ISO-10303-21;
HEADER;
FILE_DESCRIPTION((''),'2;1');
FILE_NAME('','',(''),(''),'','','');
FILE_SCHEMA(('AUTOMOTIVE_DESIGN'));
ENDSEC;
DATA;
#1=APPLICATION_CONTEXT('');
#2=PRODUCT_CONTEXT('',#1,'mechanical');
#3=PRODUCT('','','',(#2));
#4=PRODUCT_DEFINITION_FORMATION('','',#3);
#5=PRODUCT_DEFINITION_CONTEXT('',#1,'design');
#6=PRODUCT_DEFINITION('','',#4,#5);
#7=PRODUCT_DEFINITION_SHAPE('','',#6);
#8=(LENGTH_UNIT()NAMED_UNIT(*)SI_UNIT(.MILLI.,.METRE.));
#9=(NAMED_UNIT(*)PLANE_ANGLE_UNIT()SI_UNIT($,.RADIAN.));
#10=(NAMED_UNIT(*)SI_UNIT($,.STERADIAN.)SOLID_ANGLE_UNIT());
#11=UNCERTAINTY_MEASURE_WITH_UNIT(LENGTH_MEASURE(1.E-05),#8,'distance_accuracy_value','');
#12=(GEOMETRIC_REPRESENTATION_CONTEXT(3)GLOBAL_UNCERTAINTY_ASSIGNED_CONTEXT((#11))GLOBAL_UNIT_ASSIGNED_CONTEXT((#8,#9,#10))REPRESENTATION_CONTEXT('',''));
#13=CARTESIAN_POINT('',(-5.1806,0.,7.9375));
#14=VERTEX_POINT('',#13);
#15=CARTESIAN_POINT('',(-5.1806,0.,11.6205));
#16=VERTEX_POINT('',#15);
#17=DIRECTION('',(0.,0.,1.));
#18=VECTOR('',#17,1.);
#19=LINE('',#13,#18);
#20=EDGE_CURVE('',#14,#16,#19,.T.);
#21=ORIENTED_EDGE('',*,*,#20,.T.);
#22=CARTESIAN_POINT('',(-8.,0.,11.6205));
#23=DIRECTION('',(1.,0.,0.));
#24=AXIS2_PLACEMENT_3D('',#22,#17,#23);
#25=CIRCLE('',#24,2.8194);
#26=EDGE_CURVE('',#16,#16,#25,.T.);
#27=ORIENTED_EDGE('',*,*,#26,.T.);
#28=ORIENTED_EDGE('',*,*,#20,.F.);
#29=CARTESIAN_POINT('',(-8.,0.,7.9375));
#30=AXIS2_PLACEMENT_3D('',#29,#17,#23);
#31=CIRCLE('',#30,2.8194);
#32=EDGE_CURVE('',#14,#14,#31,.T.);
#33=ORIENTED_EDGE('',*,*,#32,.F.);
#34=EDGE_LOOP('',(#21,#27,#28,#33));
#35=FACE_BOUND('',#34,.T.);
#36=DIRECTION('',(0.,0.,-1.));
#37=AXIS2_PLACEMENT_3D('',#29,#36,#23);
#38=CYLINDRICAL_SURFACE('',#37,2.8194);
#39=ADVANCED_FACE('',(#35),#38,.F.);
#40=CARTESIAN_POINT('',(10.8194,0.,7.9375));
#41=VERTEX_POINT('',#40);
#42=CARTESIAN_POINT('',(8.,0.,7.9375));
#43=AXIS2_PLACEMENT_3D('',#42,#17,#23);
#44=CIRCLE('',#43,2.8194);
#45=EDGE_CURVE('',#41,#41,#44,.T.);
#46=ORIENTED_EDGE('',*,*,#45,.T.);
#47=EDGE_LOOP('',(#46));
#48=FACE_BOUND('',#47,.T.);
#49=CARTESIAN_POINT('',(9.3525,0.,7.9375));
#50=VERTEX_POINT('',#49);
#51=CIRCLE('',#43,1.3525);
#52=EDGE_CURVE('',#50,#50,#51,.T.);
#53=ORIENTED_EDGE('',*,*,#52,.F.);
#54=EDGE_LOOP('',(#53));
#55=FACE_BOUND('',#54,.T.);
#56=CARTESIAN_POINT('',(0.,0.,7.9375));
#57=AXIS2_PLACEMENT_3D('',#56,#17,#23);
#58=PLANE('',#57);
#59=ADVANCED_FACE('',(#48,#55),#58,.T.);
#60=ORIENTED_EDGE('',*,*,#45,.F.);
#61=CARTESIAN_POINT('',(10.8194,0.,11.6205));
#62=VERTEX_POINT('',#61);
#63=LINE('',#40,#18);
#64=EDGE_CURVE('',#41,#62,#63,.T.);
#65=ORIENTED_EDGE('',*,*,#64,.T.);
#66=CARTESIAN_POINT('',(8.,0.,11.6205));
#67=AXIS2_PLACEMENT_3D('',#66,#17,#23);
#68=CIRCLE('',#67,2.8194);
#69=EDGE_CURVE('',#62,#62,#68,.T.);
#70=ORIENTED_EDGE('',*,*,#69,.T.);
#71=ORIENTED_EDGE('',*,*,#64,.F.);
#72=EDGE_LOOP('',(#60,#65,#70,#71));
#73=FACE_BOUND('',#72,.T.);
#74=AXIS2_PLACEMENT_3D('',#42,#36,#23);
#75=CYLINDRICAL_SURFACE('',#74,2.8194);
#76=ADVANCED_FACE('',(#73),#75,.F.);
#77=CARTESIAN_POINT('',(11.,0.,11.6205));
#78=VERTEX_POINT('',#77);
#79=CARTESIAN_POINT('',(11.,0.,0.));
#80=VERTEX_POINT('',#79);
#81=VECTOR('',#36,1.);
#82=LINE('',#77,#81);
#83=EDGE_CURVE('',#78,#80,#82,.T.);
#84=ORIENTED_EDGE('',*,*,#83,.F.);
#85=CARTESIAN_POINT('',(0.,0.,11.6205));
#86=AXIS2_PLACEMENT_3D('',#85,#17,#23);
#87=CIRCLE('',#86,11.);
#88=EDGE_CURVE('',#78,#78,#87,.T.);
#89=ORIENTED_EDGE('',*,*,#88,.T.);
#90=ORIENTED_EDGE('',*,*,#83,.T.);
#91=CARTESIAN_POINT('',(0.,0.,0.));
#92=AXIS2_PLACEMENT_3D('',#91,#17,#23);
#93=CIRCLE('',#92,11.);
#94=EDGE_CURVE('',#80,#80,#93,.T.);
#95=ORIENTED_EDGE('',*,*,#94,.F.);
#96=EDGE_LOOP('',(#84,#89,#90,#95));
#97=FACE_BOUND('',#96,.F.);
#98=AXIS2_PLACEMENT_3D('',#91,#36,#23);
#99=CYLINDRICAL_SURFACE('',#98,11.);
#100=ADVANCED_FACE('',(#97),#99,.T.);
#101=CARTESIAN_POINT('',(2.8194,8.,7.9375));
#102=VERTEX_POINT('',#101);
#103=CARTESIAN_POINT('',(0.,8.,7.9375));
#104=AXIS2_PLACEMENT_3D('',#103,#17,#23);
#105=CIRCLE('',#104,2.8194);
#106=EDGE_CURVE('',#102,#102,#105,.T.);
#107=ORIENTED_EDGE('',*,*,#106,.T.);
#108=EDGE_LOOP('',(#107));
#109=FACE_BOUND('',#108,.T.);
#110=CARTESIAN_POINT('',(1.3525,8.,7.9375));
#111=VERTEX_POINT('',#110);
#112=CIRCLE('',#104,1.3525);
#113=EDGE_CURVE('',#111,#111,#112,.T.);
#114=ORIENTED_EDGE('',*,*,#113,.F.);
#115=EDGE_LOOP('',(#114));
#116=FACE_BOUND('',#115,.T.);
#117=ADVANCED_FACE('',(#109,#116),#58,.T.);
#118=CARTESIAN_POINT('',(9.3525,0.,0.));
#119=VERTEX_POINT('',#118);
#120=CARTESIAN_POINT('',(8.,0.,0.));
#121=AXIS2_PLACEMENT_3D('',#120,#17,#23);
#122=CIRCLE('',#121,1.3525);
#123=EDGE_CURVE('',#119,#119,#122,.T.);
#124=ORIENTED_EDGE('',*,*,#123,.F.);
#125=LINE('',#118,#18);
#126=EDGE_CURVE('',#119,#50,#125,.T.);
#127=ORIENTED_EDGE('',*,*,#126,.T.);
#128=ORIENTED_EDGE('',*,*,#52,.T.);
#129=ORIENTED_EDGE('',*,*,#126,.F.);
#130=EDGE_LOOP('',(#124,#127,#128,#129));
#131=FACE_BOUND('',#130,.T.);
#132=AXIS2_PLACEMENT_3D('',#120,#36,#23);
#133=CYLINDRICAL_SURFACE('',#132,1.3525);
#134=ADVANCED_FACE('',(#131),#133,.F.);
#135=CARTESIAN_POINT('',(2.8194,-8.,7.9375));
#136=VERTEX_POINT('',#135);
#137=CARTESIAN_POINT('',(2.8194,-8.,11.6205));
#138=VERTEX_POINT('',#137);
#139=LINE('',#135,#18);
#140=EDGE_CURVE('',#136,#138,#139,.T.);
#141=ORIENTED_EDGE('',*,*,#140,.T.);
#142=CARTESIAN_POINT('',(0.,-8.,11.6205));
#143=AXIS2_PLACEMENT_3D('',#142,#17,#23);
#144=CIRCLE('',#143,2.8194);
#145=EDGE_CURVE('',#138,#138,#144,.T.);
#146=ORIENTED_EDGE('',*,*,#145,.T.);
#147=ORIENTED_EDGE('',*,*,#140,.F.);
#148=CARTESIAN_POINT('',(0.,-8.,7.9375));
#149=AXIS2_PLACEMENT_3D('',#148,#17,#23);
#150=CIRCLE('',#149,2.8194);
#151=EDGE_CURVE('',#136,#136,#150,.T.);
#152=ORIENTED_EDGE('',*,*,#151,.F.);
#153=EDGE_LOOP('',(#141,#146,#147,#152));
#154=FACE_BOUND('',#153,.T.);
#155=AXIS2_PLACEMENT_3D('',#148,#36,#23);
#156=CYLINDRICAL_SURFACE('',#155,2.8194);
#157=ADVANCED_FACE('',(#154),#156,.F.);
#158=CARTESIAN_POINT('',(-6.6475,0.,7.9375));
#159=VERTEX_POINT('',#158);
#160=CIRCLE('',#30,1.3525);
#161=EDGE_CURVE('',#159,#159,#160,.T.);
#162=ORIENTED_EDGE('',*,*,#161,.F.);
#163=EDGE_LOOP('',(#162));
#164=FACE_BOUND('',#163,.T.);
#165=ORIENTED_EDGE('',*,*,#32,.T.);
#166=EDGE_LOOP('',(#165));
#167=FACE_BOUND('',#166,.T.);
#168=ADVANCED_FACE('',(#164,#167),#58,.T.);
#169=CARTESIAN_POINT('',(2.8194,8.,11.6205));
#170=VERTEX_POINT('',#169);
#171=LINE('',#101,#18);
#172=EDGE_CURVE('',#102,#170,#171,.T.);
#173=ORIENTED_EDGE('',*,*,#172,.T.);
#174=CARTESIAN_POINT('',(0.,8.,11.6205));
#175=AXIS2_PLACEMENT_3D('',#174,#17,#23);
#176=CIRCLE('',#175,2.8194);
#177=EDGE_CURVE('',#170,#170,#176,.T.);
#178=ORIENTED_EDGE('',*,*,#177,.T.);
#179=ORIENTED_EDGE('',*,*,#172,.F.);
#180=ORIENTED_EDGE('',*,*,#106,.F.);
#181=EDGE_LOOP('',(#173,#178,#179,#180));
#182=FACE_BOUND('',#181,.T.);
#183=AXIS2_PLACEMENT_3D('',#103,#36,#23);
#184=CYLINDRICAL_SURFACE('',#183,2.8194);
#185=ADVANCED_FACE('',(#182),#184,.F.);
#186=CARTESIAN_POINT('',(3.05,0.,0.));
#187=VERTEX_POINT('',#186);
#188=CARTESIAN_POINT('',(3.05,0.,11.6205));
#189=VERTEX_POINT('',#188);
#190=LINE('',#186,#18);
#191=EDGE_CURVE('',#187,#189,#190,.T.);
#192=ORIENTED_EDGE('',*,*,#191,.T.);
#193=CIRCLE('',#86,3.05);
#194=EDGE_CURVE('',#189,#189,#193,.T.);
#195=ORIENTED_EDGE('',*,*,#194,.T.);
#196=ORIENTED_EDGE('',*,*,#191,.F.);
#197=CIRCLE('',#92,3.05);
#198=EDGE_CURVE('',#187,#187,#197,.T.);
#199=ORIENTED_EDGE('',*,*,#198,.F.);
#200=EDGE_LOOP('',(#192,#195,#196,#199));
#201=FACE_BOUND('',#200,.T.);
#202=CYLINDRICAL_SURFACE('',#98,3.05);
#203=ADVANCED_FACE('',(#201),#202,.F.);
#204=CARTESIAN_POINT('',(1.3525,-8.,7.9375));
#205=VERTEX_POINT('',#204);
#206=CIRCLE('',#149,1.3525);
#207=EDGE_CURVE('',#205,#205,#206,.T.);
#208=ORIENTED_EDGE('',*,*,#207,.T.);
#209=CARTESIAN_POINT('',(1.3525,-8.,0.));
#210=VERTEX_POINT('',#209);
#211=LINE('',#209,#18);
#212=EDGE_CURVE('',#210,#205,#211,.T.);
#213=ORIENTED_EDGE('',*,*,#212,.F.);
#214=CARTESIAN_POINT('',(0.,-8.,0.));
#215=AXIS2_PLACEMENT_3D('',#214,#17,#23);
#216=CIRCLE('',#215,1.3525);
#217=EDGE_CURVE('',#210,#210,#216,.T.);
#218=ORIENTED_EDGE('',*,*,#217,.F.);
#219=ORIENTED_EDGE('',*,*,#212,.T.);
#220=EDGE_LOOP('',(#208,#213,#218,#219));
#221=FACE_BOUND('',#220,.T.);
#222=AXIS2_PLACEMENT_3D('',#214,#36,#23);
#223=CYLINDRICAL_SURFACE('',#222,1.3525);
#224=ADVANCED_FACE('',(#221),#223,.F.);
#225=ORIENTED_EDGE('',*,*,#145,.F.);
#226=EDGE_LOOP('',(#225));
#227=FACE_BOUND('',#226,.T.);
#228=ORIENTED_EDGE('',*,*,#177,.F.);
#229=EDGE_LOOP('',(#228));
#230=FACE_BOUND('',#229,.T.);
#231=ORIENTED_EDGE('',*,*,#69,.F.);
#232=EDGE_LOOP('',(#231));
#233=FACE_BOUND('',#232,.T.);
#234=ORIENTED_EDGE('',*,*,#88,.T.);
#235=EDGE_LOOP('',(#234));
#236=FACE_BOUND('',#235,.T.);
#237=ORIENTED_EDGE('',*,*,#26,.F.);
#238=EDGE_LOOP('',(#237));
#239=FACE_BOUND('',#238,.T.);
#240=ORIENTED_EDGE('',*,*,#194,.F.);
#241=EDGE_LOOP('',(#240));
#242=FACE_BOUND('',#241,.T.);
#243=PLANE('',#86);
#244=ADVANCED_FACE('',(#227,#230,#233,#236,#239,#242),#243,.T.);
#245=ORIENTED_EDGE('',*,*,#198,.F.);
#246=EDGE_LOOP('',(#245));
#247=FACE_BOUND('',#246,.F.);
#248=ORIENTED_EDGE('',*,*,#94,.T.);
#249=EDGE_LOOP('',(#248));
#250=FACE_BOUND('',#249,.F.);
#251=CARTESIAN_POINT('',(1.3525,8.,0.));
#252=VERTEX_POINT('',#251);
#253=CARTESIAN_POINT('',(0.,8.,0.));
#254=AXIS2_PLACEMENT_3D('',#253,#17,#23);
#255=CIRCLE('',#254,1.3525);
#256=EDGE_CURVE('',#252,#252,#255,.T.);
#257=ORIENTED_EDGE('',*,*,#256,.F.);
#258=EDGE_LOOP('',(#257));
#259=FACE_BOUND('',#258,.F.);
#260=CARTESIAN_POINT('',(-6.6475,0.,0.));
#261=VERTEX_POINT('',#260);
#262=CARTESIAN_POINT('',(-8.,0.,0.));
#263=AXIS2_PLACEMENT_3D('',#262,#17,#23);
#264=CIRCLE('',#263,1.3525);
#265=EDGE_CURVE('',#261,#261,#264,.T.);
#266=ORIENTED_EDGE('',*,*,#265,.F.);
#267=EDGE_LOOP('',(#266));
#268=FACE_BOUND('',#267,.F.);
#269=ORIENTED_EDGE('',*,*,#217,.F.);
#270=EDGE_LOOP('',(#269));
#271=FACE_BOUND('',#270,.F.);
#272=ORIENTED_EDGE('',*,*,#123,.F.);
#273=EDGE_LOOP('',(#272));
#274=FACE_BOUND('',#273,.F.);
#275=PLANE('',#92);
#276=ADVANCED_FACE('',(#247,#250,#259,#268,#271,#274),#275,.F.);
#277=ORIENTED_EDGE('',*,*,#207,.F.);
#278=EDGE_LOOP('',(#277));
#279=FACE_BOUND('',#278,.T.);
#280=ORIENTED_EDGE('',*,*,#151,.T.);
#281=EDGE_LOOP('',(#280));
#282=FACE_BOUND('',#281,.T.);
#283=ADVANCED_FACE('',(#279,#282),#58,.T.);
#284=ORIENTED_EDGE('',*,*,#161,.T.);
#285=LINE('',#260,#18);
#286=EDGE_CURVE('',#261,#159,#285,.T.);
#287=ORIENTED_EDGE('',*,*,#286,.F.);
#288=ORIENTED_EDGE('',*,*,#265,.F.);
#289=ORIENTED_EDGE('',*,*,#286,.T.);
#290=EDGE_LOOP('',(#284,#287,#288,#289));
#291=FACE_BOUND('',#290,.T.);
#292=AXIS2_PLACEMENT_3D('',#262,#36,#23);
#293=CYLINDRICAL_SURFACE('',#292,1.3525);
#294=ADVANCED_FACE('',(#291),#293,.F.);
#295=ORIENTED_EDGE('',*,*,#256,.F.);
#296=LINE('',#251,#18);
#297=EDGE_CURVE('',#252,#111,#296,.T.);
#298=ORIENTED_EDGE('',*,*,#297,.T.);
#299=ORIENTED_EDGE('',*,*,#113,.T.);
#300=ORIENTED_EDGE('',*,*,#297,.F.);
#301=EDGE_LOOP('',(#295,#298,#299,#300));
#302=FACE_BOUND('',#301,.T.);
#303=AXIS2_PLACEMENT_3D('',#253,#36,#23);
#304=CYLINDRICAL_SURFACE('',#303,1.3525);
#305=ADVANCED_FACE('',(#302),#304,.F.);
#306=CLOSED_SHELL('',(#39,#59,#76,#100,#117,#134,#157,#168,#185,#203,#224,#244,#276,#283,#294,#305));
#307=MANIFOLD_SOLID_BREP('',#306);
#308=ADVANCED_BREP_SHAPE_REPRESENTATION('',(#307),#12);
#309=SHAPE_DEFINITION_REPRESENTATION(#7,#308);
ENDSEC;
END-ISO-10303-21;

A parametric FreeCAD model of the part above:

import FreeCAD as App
import Part
import Sketcher
from FreeCAD import Vector
Q = App.Units.Quantity

doc = App.newDocument("Part")
body = doc.addObject("PartDesign::Body", "Body")

sketch1 = body.newObject("Sketcher::SketchObject", "Sketch")
sketch1.AttachmentSupport = (doc.getObject("XY_Plane"), [""])
sketch1.MapMode = "FlatFace"
sketch1.addGeometry([
    Part.Circle(Vector(0, 0, 0), Vector(0, 0, 1), 11),
    Part.Circle(Vector(0, -8, 0), Vector(0, 0, 1), 1.4),
    Part.Circle(Vector(-8, 0, 0), Vector(0, 0, 1), 1.4),
    Part.Circle(Vector(0, 0, 0), Vector(0, 0, 1), 3),
    Part.Circle(Vector(8, 0, 0), Vector(0, 0, 1), 1.4),
    Part.Circle(Vector(0, 8, 0), Vector(0, 0, 1), 1.4),
], False)
sketch1.addConstraint([
    Sketcher.Constraint("Coincident", 0, 3, -1, 1),
    Sketcher.Constraint("Coincident", 3, 3, -1, 1),
    Sketcher.Constraint("Equal", 1, 2),
    Sketcher.Constraint("Equal", 2, 4),
    Sketcher.Constraint("Equal", 4, 5),
    Sketcher.Constraint("Symmetric", 2, 3, 4, 3, -1, 1),
    Sketcher.Constraint("Symmetric", 1, 3, 5, 3, -1, 1),
    Sketcher.Constraint("PointOnObject", 1, 3, -2),
    Sketcher.Constraint("PointOnObject", 2, 3, -1),
    Sketcher.Constraint("Diameter", 1, Q("0.1065 in")),
    Sketcher.Constraint("Diameter", 0, Q("22 mm")),
    Sketcher.Constraint("Diameter", 3, Q("6.1 mm")),
    Sketcher.Constraint("DistanceY", 1, 3, -1, 1, Q("8 mm")),
    Sketcher.Constraint("DistanceX", 2, 3, -1, 1, Q("8 mm")),
])
pad1 = body.newObject("PartDesign::Pad", "Pad")
pad1.Profile = sketch1
pad1.Length = Q("0.3125 in")

sketch2 = body.newObject("Sketcher::SketchObject", "Sketch001")
sketch2.AttachmentSupport = (doc.getObject("XY_Plane"), [""])
sketch2.MapMode = "FlatFace"
sketch2.AttachmentOffset = App.Placement(Vector(0, 0, 0.3125 * 25.4), App.Rotation())
sketch2.addGeometry([
    Part.Circle(Vector(0, 0, 0), Vector(0, 0, 1), 11),
    Part.Circle(Vector(0, -8, 0), Vector(0, 0, 1), 2.8),
    Part.Circle(Vector(-8, 0, 0), Vector(0, 0, 1), 2.8),
    Part.Circle(Vector(0, 0, 0), Vector(0, 0, 1), 3),
    Part.Circle(Vector(8, 0, 0), Vector(0, 0, 1), 2.8),
    Part.Circle(Vector(0, 8, 0), Vector(0, 0, 1), 2.8),
], False)
sketch2.addConstraint([
    Sketcher.Constraint("Coincident", 0, 3, -1, 1),
    Sketcher.Constraint("Coincident", 3, 3, -1, 1),
    Sketcher.Constraint("Equal", 1, 2),
    Sketcher.Constraint("Equal", 2, 4),
    Sketcher.Constraint("Equal", 4, 5),
    Sketcher.Constraint("Symmetric", 2, 3, 4, 3, -1, 1),
    Sketcher.Constraint("Symmetric", 1, 3, 5, 3, -1, 1),
    Sketcher.Constraint("PointOnObject", 1, 3, -2),
    Sketcher.Constraint("PointOnObject", 2, 3, -1),
    Sketcher.Constraint("Diameter", 1, Q("0.222 in")),
    Sketcher.Constraint("Diameter", 0, Q("22 mm")),
    Sketcher.Constraint("Diameter", 3, Q("6.1 mm")),
    Sketcher.Constraint("DistanceY", 1, 3, -1, 1, Q("8 mm")),
    Sketcher.Constraint("DistanceX", 2, 3, -1, 1, Q("8 mm")),
])
pad2 = body.newObject("PartDesign::Pad", "Pad001")
pad2.Profile = sketch2
pad2.Length = Q("0.145 in")

doc.recompute()
